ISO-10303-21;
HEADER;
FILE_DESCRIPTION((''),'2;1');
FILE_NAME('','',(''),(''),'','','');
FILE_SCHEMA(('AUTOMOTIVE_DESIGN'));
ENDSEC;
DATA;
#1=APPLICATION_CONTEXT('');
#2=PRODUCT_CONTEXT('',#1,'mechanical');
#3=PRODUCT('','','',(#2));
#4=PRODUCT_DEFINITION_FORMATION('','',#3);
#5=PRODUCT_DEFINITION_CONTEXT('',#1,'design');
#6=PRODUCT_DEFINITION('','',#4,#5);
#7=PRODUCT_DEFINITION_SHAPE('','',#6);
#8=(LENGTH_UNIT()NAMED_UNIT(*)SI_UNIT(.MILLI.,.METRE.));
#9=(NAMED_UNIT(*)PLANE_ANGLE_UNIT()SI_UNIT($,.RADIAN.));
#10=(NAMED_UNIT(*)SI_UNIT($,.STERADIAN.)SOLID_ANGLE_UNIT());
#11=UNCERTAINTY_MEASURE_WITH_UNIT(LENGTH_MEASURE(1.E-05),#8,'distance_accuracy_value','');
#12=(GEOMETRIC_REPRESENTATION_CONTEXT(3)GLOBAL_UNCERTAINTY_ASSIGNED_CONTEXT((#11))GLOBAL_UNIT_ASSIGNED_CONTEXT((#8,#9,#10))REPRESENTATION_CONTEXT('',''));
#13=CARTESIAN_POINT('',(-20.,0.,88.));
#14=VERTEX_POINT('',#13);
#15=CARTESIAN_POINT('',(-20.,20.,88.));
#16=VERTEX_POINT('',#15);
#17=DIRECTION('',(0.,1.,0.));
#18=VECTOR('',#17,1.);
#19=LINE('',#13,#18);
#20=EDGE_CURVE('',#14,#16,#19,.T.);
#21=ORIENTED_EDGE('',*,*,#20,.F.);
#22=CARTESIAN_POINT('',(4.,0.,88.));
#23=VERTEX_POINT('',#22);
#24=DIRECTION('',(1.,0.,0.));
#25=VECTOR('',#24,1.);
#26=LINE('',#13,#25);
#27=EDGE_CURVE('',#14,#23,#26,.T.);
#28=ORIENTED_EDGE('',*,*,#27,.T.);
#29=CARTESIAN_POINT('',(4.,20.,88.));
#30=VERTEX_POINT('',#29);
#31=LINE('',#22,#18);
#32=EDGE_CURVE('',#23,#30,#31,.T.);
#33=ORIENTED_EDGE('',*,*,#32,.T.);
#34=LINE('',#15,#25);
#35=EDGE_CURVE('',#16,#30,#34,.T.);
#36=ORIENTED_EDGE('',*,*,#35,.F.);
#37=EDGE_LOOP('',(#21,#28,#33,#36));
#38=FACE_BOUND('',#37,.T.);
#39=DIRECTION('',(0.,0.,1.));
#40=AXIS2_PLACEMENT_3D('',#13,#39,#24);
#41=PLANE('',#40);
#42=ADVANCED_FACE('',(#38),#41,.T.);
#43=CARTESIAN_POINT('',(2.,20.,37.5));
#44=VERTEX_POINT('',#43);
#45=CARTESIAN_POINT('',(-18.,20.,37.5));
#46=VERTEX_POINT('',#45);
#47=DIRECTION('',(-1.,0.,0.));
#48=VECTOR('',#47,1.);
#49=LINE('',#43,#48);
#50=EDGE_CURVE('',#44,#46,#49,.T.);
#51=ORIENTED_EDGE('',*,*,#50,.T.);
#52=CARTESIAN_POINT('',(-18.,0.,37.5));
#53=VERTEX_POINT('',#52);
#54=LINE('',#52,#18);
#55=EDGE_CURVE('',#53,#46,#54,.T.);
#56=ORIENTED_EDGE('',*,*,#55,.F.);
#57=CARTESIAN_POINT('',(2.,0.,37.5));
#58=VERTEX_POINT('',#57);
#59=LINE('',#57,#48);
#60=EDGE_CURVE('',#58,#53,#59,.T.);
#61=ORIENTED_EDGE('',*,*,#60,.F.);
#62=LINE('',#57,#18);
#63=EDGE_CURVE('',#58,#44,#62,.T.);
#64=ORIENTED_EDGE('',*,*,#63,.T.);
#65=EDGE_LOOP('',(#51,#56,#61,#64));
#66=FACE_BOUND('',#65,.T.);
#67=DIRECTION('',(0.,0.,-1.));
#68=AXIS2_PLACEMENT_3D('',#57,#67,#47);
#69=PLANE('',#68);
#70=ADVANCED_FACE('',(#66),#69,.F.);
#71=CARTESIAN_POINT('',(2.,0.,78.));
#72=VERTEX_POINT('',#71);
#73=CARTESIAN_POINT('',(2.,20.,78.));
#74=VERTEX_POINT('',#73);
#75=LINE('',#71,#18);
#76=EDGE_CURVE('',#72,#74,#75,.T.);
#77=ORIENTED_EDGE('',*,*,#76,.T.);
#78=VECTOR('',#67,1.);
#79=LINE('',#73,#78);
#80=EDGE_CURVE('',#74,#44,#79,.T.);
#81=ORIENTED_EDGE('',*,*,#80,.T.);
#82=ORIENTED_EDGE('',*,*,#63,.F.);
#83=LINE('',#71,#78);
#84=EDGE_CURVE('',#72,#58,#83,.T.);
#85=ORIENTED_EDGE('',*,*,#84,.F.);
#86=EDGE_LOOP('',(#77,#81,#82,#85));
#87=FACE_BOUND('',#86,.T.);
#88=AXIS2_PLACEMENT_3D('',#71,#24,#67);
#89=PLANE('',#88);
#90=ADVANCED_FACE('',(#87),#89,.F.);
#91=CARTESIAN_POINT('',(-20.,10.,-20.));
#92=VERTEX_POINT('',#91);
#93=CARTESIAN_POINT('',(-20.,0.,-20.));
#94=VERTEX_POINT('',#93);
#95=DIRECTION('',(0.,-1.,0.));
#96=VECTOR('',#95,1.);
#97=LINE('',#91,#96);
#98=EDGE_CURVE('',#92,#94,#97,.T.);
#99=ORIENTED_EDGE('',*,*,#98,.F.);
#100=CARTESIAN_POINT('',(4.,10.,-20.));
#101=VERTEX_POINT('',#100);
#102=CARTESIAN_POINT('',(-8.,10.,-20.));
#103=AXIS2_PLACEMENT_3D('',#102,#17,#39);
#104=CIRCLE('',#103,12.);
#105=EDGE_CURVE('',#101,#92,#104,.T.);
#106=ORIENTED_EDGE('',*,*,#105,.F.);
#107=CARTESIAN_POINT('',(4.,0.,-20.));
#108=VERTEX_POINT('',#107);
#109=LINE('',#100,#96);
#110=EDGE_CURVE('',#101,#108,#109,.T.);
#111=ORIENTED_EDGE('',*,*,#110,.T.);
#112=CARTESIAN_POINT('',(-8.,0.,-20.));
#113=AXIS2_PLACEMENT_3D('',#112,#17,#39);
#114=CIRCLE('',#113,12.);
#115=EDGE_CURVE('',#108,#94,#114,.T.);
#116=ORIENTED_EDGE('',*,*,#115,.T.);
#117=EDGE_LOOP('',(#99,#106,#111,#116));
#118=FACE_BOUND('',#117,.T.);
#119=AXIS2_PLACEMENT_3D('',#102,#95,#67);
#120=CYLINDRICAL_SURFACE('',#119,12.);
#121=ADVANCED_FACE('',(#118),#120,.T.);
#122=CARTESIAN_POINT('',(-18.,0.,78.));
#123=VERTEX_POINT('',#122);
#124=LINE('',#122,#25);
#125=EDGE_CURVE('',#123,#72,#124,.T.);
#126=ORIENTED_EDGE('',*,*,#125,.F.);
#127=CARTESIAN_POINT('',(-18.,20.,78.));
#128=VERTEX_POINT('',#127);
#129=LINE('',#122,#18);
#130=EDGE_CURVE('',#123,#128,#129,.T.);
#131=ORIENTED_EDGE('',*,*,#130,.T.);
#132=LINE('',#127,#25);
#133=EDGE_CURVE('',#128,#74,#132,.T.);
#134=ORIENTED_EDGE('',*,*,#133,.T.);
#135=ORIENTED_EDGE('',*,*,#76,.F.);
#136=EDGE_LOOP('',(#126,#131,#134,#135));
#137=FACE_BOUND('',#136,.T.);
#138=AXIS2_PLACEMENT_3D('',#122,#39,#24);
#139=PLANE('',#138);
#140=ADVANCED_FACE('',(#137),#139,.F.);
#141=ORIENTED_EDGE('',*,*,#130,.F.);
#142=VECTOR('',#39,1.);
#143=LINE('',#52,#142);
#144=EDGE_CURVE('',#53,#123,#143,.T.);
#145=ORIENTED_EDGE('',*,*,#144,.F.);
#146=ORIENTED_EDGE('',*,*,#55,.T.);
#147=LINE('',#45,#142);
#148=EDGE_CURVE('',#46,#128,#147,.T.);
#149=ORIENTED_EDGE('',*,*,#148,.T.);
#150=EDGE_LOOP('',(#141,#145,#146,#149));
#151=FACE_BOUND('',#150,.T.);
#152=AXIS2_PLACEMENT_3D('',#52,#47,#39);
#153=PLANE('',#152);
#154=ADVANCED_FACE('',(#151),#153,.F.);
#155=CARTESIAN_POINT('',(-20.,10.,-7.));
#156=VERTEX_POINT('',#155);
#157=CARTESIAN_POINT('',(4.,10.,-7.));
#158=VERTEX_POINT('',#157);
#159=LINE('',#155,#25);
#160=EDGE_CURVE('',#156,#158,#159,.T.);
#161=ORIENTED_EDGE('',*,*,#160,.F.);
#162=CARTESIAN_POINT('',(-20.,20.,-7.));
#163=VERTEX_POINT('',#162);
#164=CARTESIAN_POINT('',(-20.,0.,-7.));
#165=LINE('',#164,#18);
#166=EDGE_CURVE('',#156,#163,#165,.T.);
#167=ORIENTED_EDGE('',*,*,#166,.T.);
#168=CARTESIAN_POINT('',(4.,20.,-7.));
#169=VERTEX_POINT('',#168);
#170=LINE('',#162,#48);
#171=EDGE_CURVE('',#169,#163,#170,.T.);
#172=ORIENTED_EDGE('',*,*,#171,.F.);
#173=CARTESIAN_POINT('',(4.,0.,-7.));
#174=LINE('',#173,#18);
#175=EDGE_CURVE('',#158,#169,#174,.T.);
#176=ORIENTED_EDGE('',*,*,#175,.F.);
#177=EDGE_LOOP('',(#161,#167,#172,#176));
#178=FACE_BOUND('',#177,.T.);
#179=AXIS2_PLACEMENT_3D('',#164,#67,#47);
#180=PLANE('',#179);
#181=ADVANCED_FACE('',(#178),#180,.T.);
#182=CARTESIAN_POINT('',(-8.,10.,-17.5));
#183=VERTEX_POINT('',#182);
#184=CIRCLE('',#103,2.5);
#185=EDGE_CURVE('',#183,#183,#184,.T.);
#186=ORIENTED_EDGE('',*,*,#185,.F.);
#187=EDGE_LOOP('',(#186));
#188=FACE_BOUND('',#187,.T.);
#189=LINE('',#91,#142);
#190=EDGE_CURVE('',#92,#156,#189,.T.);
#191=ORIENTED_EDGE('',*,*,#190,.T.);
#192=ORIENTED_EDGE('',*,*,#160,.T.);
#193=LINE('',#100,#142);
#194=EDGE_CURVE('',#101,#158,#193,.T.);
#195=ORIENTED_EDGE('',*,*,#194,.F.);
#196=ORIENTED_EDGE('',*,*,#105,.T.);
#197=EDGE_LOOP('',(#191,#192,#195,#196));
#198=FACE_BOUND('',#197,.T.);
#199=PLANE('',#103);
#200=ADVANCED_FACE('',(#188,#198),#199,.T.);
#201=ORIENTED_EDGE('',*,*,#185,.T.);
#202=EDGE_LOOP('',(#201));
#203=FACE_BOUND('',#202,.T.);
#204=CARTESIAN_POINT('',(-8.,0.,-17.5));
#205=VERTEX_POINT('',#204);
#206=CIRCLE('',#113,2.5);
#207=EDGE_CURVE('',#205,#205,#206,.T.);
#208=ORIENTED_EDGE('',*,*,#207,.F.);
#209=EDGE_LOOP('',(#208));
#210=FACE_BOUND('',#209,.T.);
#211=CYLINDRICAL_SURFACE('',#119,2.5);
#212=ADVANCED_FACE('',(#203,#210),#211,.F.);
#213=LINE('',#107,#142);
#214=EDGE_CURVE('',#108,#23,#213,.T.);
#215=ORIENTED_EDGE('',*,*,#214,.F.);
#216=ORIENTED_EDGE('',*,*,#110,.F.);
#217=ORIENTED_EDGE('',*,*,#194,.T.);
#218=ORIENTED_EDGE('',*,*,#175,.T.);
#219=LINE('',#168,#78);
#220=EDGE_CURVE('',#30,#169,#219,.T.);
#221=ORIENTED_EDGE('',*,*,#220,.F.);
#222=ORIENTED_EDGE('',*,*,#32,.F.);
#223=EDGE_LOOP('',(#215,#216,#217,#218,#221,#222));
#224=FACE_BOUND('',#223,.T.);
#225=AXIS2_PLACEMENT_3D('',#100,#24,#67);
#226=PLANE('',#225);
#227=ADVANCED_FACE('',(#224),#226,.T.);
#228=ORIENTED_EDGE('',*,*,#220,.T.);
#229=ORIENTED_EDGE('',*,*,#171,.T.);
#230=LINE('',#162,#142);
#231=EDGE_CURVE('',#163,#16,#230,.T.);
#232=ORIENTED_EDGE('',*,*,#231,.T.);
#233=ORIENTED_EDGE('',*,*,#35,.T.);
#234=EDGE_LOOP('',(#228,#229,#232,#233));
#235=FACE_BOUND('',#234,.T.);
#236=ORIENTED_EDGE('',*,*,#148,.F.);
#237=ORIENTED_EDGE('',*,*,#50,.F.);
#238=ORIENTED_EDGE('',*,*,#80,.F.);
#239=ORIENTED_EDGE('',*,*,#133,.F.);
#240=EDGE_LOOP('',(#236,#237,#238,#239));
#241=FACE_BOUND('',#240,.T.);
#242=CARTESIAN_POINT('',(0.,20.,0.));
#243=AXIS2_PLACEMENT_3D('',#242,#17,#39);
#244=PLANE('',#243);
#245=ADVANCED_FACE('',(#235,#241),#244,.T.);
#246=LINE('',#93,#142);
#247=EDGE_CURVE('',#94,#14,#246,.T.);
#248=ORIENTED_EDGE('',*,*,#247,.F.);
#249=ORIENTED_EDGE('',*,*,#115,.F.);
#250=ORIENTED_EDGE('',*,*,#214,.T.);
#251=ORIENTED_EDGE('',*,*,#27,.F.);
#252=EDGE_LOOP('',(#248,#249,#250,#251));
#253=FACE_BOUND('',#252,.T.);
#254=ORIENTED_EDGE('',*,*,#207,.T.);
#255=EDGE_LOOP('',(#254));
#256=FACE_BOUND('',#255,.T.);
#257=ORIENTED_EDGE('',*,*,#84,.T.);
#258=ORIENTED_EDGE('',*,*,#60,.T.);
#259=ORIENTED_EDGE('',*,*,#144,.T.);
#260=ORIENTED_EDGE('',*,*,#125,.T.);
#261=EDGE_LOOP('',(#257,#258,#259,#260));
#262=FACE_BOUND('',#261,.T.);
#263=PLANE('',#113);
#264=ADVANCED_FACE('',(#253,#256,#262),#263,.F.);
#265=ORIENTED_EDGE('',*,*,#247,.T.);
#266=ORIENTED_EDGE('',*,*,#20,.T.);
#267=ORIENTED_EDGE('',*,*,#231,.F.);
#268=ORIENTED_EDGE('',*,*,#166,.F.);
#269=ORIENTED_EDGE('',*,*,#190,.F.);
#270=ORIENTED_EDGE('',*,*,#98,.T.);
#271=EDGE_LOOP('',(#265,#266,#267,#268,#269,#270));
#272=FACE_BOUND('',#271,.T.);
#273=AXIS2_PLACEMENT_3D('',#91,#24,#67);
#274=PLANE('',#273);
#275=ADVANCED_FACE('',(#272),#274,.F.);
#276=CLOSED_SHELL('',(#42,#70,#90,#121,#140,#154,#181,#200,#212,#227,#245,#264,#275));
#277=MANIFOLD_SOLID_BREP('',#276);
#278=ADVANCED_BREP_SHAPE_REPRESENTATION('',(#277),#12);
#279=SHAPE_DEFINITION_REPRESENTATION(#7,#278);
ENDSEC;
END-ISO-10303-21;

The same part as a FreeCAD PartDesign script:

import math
import FreeCAD as App
import Part
import Sketcher


def add_polygon(sketch, points):
    """Adds a closed chain of lines whose ends are joined by coincident constraints."""
    first, n = sketch.GeometryCount, len(points)
    for a, b in zip(points, points[1:] + points[:1]):
        sketch.addGeometry(Part.LineSegment(App.Vector(*a, 0), App.Vector(*b, 0)), False)
    for i in range(n):
        sketch.addConstraint(Sketcher.Constraint("Coincident", first + i, 2, first + (i + 1) % n, 1))

doc = App.newDocument("Part")
body = doc.addObject("PartDesign::Body", "Body")

# Sketch on XZ plane
sketch1 = body.newObject("Sketcher::SketchObject", "Sketch")
sketch1.AttachmentSupport = (doc.getObject("XZ_Plane"), [""])
sketch1.MapMode = "FlatFace"
sketch1.addGeometry(Part.LineSegment(App.Vector(-20, -20, 0), App.Vector(-20, -7, 0)), False)
sketch1.addGeometry(Part.LineSegment(App.Vector(-20, -7, 0), App.Vector(4, -7, 0)), False)
sketch1.addGeometry(Part.LineSegment(App.Vector(4, -7, 0), App.Vector(4, -20, 0)), False)
sketch1.addGeometry(Part.ArcOfCircle(Part.Circle(App.Vector(-8, -20, 0), App.Vector(0, 0, 1), 12), math.radians(180), math.radians(360)), False)
sketch1.addGeometry(Part.Circle(App.Vector(-8, -20, 0), App.Vector(0, 0, 1), 2.5), False)
sketch1.addConstraint(Sketcher.Constraint("Coincident", 0, 2, 1, 1))
sketch1.addConstraint(Sketcher.Constraint("Coincident", 1, 2, 2, 1))
sketch1.addConstraint(Sketcher.Constraint("Tangent", 2, 2, 3, 2))
sketch1.addConstraint(Sketcher.Constraint("Tangent", 3, 1, 0, 1))
sketch1.addConstraint(Sketcher.Constraint("Vertical", 0))
sketch1.addConstraint(Sketcher.Constraint("Horizontal", 1))
sketch1.addConstraint(Sketcher.Constraint("Vertical", 2))
sketch1.addConstraint(Sketcher.Constraint("Coincident", 4, 3, 3, 3))
sketch1.addConstraint(Sketcher.Constraint("Diameter", 4, 5.0))
sketch1.addConstraint(Sketcher.Constraint("Radius", 3, 12.0))
sketch1.addConstraint(Sketcher.Constraint("DistanceY", 0, 1, 0, 2, 13.0))
sketch1.addConstraint(Sketcher.Constraint("DistanceX", 3, 3, -1, 1, 8.0))
sketch1.addConstraint(Sketcher.Constraint("DistanceY", 3, 3, -1, 1, 20.0))
pad1 = body.newObject("PartDesign::Pad", "Pad")
pad1.Profile = sketch1
pad1.Length = 10
pad1.Reversed = True

# Sketch on XZ plane
sketch2 = body.newObject("Sketcher::SketchObject", "Sketch001")
sketch2.AttachmentSupport = (doc.getObject("XZ_Plane"), [""])
sketch2.MapMode = "FlatFace"
sketch2.AttachmentOffset = App.Placement(App.Vector(0, 0, -10), App.Rotation())
add_polygon(sketch2, [(-20, -7), (-20, 88), (4, 88), (4, -7)])  # lines 0-3
add_polygon(sketch2, [(2, 78), (-18, 78), (-18, 38), (2, 38)])  # lines 4-7
sketch2.addConstraint(Sketcher.Constraint("Vertical", 0))
sketch2.addConstraint(Sketcher.Constraint("Horizontal", 1))
sketch2.addConstraint(Sketcher.Constraint("Vertical", 2))
sketch2.addConstraint(Sketcher.Constraint("Horizontal", 3))
sketch2.addConstraint(Sketcher.Constraint("Horizontal", 4))
sketch2.addConstraint(Sketcher.Constraint("Vertical", 5))
sketch2.addConstraint(Sketcher.Constraint("Horizontal", 6))
sketch2.addConstraint(Sketcher.Constraint("Vertical", 7))
sketch2.addConstraint(Sketcher.Constraint("DistanceX", 1, 1, 1, 2, 24.0))
sketch2.addConstraint(Sketcher.Constraint("DistanceX", 4, 2, 4, 1, 20.0))
sketch2.addConstraint(Sketcher.Constraint("DistanceY", 0, 1, 0, 2, 95.0))
sketch2.addConstraint(Sketcher.Constraint("DistanceY", 5, 2, 5, 1, 40.5))
sketch2.addConstraint(Sketcher.Constraint("DistanceX", 0, 2, -1, 1, 20.0))
sketch2.addConstraint(Sketcher.Constraint("DistanceY", -1, 1, 0, 2, 88.0))
sketch2.addConstraint(Sketcher.Constraint("DistanceX", 4, 2, -1, 1, 18.0))
sketch2.addConstraint(Sketcher.Constraint("DistanceY", -1, 1, 4, 2, 78.0))
pad2 = body.newObject("PartDesign::Pad", "Pad001")
pad2.Profile = sketch2
pad2.Type = "TwoLengths"
pad2.Length = 10
pad2.Length2 = 10
pad2.Reversed = True

doc.recompute()
